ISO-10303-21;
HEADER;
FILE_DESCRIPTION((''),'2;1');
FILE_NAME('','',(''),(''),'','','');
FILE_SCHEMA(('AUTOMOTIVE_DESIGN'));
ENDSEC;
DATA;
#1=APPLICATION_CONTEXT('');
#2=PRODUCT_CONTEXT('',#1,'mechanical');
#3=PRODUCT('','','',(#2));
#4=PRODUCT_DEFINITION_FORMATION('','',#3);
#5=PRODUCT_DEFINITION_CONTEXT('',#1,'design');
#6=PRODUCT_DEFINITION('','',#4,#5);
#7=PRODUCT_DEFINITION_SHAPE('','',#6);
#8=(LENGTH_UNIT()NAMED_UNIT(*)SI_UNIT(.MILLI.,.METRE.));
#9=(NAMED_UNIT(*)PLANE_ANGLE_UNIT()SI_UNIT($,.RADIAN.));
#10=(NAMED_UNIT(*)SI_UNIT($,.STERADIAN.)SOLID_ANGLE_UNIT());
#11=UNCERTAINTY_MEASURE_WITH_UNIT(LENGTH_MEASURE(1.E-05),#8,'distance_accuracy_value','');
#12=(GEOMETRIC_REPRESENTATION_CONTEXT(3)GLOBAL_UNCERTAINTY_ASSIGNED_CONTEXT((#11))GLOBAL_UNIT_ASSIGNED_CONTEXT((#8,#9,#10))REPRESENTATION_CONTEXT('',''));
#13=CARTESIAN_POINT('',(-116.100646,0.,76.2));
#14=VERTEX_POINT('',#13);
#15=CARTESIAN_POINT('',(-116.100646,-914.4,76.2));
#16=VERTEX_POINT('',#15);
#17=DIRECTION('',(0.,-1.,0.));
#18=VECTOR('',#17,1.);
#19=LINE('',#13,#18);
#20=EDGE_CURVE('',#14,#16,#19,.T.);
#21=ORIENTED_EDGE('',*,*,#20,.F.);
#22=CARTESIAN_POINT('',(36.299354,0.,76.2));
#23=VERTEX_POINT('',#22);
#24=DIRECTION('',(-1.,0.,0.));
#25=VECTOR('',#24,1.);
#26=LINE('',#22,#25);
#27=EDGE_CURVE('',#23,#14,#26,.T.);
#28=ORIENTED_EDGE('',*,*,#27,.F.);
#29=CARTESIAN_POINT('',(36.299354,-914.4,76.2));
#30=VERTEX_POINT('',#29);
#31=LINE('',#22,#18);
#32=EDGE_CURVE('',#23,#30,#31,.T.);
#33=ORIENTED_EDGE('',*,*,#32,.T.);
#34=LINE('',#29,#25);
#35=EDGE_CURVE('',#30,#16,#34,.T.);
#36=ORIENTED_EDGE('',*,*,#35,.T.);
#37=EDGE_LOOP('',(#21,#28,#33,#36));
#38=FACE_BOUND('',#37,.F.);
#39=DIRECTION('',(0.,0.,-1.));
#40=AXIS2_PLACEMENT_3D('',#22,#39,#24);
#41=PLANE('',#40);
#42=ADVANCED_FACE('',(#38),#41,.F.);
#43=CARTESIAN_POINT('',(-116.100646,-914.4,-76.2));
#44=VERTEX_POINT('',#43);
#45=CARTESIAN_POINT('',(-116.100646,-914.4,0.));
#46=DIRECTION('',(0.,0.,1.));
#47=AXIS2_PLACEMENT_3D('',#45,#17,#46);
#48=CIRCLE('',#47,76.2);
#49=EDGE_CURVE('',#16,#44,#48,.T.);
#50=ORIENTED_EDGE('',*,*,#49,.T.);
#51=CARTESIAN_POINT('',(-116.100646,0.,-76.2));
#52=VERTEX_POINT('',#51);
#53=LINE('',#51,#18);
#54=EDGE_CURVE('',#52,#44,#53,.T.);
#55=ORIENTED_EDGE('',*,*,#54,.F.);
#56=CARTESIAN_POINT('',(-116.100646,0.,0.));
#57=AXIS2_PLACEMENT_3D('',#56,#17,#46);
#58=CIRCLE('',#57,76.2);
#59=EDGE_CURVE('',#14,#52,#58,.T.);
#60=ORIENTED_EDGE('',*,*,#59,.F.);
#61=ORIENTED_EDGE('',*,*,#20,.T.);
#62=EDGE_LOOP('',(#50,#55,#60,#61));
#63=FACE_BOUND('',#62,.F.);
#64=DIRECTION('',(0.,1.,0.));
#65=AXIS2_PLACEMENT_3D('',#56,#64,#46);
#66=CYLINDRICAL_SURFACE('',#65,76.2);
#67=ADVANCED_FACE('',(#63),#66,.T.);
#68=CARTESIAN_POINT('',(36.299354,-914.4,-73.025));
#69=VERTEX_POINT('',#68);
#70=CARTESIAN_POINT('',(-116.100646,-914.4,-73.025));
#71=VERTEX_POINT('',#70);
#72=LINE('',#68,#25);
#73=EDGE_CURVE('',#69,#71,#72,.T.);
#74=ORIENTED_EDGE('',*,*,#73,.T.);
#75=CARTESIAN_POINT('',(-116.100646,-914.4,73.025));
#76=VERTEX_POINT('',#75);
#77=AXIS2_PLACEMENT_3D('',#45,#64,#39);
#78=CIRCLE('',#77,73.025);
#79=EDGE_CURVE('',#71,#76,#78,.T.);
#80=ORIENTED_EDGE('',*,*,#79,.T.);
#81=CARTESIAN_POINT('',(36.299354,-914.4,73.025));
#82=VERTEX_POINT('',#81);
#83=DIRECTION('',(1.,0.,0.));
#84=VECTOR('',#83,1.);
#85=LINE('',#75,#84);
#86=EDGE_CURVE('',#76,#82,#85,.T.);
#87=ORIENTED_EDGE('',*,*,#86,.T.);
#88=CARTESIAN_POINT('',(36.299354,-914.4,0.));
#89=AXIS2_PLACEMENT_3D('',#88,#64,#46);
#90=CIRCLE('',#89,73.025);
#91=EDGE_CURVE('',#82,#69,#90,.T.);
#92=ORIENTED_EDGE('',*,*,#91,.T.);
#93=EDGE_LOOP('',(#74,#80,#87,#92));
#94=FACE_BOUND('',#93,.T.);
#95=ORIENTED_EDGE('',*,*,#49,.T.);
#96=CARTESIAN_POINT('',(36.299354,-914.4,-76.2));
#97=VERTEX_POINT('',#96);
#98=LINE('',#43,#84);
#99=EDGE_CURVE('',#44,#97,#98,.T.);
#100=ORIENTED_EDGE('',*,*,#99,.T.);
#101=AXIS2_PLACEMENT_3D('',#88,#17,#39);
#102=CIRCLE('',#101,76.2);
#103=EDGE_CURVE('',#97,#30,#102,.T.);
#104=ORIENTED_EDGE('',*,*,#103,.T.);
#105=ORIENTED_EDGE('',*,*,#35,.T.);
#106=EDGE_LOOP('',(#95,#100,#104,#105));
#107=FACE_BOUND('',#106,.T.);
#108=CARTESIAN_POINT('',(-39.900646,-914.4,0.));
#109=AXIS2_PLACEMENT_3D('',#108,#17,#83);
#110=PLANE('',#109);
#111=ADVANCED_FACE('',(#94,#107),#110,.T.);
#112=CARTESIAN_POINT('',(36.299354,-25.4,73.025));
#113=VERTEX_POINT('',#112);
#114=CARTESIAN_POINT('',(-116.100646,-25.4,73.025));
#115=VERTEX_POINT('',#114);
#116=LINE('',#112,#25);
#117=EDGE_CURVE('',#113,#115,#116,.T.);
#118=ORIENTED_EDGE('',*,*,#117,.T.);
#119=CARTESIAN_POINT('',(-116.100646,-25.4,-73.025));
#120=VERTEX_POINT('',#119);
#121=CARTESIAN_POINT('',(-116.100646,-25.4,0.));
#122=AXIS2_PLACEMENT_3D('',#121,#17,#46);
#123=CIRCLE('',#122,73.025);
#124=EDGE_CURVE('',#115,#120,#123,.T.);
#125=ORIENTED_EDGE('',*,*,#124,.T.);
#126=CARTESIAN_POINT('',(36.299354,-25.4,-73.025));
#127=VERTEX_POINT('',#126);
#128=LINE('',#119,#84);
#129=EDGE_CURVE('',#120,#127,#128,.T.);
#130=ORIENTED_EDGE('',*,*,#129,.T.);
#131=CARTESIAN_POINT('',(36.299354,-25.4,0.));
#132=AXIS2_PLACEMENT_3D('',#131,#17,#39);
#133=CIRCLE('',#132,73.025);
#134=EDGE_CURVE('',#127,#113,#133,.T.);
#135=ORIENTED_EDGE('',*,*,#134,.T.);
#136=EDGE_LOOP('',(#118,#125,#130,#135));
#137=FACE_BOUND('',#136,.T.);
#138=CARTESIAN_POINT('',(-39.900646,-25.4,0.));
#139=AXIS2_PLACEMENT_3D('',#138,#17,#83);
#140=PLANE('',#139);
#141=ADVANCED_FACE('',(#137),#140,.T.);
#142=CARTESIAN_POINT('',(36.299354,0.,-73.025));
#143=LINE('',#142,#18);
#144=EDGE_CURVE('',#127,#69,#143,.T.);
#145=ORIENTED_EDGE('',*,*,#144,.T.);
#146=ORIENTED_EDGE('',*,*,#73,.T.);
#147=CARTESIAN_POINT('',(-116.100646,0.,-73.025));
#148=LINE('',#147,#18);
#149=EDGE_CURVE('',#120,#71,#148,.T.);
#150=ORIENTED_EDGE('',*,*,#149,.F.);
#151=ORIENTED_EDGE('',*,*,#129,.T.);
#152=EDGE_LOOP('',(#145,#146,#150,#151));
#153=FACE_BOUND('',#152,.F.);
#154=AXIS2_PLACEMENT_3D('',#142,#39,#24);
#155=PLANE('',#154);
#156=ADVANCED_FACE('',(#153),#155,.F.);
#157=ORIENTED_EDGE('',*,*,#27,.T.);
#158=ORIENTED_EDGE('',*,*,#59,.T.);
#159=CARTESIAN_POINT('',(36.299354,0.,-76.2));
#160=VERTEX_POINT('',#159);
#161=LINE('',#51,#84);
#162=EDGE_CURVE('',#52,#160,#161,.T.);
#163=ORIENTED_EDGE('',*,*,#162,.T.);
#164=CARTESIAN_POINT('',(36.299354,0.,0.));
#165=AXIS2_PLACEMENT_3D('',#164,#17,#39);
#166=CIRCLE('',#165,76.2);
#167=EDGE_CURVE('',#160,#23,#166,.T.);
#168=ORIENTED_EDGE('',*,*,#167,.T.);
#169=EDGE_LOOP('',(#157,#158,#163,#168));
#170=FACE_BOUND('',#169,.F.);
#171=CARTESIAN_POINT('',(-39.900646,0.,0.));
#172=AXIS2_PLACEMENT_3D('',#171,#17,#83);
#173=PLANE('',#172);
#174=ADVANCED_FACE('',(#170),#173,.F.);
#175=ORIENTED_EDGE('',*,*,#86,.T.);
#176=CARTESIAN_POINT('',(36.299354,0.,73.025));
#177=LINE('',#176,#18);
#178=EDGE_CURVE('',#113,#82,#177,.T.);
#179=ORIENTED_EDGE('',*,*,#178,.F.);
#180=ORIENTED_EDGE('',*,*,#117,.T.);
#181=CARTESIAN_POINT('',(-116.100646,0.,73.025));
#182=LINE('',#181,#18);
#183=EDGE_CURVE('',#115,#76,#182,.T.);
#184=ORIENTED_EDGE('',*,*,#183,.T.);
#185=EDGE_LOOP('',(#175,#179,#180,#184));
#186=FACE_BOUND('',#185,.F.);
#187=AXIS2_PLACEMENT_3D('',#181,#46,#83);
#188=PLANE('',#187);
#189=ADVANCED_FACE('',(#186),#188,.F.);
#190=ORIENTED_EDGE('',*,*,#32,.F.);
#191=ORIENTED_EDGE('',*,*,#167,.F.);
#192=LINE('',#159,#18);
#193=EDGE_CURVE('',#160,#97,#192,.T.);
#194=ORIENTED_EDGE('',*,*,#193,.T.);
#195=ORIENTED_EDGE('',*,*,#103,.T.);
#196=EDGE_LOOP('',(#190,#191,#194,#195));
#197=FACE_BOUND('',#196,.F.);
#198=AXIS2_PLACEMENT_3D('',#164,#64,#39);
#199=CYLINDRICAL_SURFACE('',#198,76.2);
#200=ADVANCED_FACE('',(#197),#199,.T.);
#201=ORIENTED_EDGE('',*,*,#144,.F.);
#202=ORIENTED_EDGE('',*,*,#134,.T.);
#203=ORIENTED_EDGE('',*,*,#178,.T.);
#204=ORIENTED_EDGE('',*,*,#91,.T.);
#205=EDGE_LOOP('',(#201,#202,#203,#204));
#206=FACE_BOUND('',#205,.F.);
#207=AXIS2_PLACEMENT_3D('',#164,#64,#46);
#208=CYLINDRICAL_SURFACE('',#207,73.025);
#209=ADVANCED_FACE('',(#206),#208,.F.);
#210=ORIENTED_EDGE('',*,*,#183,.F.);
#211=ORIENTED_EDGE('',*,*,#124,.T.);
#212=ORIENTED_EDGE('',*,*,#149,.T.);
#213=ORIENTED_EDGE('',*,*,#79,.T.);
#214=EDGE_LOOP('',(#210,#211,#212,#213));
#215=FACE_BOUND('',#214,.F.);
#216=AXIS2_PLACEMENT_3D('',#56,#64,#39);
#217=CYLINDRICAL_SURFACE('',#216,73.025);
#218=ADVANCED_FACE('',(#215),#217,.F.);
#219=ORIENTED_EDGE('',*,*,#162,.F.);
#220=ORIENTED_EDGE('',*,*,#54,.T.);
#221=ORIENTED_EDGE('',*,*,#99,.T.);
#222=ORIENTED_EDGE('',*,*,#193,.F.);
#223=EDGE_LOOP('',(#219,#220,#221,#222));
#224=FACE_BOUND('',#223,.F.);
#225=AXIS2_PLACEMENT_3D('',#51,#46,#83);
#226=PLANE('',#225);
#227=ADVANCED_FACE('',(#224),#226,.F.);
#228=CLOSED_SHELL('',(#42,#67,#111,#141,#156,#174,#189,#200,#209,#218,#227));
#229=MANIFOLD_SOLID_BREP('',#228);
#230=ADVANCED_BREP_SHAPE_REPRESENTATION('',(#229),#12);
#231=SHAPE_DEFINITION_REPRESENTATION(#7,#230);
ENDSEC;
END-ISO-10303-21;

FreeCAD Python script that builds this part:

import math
import FreeCAD as App
import Part
import Sketcher
from FreeCAD import Vector
Q = App.Units.Quantity

doc = App.newDocument("Part")
body = doc.addObject("PartDesign::Body", "Body")

# Sketch on XZ plane
sketch1 = body.newObject("Sketcher::SketchObject", "Sketch")
sketch1.AttachmentSupport = (doc.getObject("XZ_Plane"), [""])
sketch1.MapMode = "FlatFace"
sketch1.addGeometry([
    Part.LineSegment(Vector(36.299354, 76.2, 0), Vector(-116.100646, 76.2, 0)),  # 0
    Part.ArcOfCircle(Part.Circle(Vector(-116.100646, 0, 0), Vector(0, 0, 1), 76.2), math.radians(90), math.radians(270)),  # 1
    Part.LineSegment(Vector(-116.100646, -76.2, 0), Vector(36.299354, -76.2, 0)),  # 2
    Part.ArcOfCircle(Part.Circle(Vector(36.299354, 0, 0), Vector(0, 0, 1), 76.2), math.radians(-90), math.radians(90)),  # 3
    Part.LineSegment(Vector(36.299354, -73.025, 0), Vector(-116.100646, -73.025, 0)),  # 4
    Part.ArcOfCircle(Part.Circle(Vector(-116.100646, 0, 0), Vector(0, 0, 1), 73.025), math.radians(90), math.radians(270)),  # 5
    Part.LineSegment(Vector(-116.100646, 73.025, 0), Vector(36.299354, 73.025, 0)),  # 6
    Part.ArcOfCircle(Part.Circle(Vector(36.299354, 0, 0), Vector(0, 0, 1), 73.025), math.radians(-90), math.radians(90)),  # 7
], False)
sketch1.addConstraint([
    Sketcher.Constraint("Tangent", 0, 2, 1, 1),
    Sketcher.Constraint("Tangent", 1, 2, 2, 1),
    Sketcher.Constraint("Tangent", 2, 2, 3, 1),
    Sketcher.Constraint("Tangent", 3, 2, 0, 1),
    Sketcher.Constraint("Tangent", 4, 2, 5, 2),
    Sketcher.Constraint("Tangent", 5, 1, 6, 1),
    Sketcher.Constraint("Tangent", 6, 2, 7, 2),
    Sketcher.Constraint("Tangent", 7, 1, 4, 1),
    Sketcher.Constraint("Horizontal", 0),
    Sketcher.Constraint("Horizontal", 2),
    Sketcher.Constraint("Horizontal", 4),
    Sketcher.Constraint("Horizontal", 6),
    Sketcher.Constraint("Coincident", 5, 3, 1, 3),
    Sketcher.Constraint("PointOnObject", 1, 3, -1),
    Sketcher.Constraint("Vertical", 7, 3, 2, 2),
    Sketcher.Constraint("Radius", 1, Q("3 in")),
    Sketcher.Constraint("DistanceX", 0, 2, 0, 1, Q("6 in")),
    Sketcher.Constraint("Radius", 5, Q("2.875 in")),
    Sketcher.Constraint("DistanceX", 1, 3, -1, 1, Q("116.100646 mm")),
])
pad1 = body.newObject("PartDesign::Pad", "Pad")
pad1.Profile = sketch1
pad1.Length = Q("36 in")

# Sketch on XZ plane
sketch2 = body.newObject("Sketcher::SketchObject", "Sketch001")
sketch2.AttachmentSupport = (doc.getObject("XZ_Plane"), [""])
sketch2.MapMode = "FlatFace"
sketch2.addGeometry([
    Part.LineSegment(Vector(36.299354, 73.025, 0), Vector(-116.100646, 73.025, 0)),
    Part.ArcOfCircle(Part.Circle(Vector(-116.100646, 0, 0), Vector(0, 0, 1), 73.025), math.radians(90), math.radians(270)),
    Part.LineSegment(Vector(-116.100646, -73.025, 0), Vector(36.299354, -73.025, 0)),
    Part.ArcOfCircle(Part.Circle(Vector(36.299354, 0, 0), Vector(0, 0, 1), 73.025), math.radians(-90), math.radians(90)),
], False)
sketch2.addConstraint([
    Sketcher.Constraint("Tangent", 0, 2, 1, 1),
    Sketcher.Constraint("Tangent", 1, 2, 2, 1),
    Sketcher.Constraint("Tangent", 2, 2, 3, 1),
    Sketcher.Constraint("Tangent", 3, 2, 0, 1),
    Sketcher.Constraint("Horizontal", 0),
    Sketcher.Constraint("Horizontal", 2),
    Sketcher.Constraint("PointOnObject", 1, 3, -1),
    Sketcher.Constraint("DistanceX", 0, 2, 0, 1, Q("6 in")),
    Sketcher.Constraint("Radius", 1, Q("2.875 in")),
    Sketcher.Constraint("DistanceX", 1, 3, -1, 1, Q("116.100646 mm")),
])
pad2 = body.newObject("PartDesign::Pad", "Pad001")
pad2.Profile = sketch2
pad2.Length = Q("1 in")

doc.recompute()
